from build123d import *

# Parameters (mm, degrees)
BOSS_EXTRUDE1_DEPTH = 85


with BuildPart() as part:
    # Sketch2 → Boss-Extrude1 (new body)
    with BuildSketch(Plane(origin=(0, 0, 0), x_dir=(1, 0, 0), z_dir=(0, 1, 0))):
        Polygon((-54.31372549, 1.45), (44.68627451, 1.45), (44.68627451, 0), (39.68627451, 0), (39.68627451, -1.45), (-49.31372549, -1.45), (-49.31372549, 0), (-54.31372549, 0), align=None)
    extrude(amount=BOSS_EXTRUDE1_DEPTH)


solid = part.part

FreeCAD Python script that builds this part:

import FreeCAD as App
import Part
import Sketcher
from FreeCAD import Vector


def add_polygon(sketch, points):
    """Adds a closed chain of lines whose ends are joined by coincident constraints."""
    first, n = sketch.GeometryCount, len(points)
    for a, b in zip(points, points[1:] + points[:1]):
        sketch.addGeometry(Part.LineSegment(App.Vector(*a, 0), App.Vector(*b, 0)), False)
    for i in range(n):
        sketch.addConstraint(Sketcher.Constraint("Coincident", first + i, 2, first + (i + 1) % n, 1))

doc = App.newDocument("Part")
body = doc.addObject("PartDesign::Body", "Body")

# Sketch on XZ plane
sketch1 = body.newObject("Sketcher::SketchObject", "Sketch")
sketch1.AttachmentSupport = (doc.getObject("XZ_Plane"), [""])
sketch1.MapMode = "FlatFace"
add_polygon(sketch1, [(44.686275, -1.45), (-54.313725, -1.45), (-54.313725, 0), (-49.313725, 0), (-49.313725, 1.45), (39.686275, 1.45), (39.686275, 0), (44.686275, 0)])  # lines 0-7
sketch1.addConstraint([
    Sketcher.Constraint("Horizontal", 0),
    Sketcher.Constraint("Vertical", 1),
    Sketcher.Constraint("Horizontal", 2),
    Sketcher.Constraint("Vertical", 3),
    Sketcher.Constraint("Horizontal", 4),
    Sketcher.Constraint("Vertical", 5),
    Sketcher.Constraint("Horizontal", 6),
    Sketcher.Constraint("Vertical", 7),
    Sketcher.Constraint("PointOnObject", 1, 2, -1),
    Sketcher.Constraint("PointOnObject", 5, 2, -1),
    Sketcher.Constraint("Equal", 2, 6),
    Sketcher.Constraint("Equal", 1, 3),
    Sketcher.Constraint("DistanceX", 0, 2, 0, 1, 99.0),
    Sketcher.Constraint("DistanceX", 2, 1, 2, 2, 5.0),
    Sketcher.Constraint("DistanceY", 1, 1, 1, 2, 1.45),
    Sketcher.Constraint("DistanceX", 0, 2, -1, 1, 54.313725),
])
pad1 = body.newObject("PartDesign::Pad", "Pad")
pad1.Profile = sketch1
pad1.Length = 85
pad1.Reversed = True

doc.recompute()
